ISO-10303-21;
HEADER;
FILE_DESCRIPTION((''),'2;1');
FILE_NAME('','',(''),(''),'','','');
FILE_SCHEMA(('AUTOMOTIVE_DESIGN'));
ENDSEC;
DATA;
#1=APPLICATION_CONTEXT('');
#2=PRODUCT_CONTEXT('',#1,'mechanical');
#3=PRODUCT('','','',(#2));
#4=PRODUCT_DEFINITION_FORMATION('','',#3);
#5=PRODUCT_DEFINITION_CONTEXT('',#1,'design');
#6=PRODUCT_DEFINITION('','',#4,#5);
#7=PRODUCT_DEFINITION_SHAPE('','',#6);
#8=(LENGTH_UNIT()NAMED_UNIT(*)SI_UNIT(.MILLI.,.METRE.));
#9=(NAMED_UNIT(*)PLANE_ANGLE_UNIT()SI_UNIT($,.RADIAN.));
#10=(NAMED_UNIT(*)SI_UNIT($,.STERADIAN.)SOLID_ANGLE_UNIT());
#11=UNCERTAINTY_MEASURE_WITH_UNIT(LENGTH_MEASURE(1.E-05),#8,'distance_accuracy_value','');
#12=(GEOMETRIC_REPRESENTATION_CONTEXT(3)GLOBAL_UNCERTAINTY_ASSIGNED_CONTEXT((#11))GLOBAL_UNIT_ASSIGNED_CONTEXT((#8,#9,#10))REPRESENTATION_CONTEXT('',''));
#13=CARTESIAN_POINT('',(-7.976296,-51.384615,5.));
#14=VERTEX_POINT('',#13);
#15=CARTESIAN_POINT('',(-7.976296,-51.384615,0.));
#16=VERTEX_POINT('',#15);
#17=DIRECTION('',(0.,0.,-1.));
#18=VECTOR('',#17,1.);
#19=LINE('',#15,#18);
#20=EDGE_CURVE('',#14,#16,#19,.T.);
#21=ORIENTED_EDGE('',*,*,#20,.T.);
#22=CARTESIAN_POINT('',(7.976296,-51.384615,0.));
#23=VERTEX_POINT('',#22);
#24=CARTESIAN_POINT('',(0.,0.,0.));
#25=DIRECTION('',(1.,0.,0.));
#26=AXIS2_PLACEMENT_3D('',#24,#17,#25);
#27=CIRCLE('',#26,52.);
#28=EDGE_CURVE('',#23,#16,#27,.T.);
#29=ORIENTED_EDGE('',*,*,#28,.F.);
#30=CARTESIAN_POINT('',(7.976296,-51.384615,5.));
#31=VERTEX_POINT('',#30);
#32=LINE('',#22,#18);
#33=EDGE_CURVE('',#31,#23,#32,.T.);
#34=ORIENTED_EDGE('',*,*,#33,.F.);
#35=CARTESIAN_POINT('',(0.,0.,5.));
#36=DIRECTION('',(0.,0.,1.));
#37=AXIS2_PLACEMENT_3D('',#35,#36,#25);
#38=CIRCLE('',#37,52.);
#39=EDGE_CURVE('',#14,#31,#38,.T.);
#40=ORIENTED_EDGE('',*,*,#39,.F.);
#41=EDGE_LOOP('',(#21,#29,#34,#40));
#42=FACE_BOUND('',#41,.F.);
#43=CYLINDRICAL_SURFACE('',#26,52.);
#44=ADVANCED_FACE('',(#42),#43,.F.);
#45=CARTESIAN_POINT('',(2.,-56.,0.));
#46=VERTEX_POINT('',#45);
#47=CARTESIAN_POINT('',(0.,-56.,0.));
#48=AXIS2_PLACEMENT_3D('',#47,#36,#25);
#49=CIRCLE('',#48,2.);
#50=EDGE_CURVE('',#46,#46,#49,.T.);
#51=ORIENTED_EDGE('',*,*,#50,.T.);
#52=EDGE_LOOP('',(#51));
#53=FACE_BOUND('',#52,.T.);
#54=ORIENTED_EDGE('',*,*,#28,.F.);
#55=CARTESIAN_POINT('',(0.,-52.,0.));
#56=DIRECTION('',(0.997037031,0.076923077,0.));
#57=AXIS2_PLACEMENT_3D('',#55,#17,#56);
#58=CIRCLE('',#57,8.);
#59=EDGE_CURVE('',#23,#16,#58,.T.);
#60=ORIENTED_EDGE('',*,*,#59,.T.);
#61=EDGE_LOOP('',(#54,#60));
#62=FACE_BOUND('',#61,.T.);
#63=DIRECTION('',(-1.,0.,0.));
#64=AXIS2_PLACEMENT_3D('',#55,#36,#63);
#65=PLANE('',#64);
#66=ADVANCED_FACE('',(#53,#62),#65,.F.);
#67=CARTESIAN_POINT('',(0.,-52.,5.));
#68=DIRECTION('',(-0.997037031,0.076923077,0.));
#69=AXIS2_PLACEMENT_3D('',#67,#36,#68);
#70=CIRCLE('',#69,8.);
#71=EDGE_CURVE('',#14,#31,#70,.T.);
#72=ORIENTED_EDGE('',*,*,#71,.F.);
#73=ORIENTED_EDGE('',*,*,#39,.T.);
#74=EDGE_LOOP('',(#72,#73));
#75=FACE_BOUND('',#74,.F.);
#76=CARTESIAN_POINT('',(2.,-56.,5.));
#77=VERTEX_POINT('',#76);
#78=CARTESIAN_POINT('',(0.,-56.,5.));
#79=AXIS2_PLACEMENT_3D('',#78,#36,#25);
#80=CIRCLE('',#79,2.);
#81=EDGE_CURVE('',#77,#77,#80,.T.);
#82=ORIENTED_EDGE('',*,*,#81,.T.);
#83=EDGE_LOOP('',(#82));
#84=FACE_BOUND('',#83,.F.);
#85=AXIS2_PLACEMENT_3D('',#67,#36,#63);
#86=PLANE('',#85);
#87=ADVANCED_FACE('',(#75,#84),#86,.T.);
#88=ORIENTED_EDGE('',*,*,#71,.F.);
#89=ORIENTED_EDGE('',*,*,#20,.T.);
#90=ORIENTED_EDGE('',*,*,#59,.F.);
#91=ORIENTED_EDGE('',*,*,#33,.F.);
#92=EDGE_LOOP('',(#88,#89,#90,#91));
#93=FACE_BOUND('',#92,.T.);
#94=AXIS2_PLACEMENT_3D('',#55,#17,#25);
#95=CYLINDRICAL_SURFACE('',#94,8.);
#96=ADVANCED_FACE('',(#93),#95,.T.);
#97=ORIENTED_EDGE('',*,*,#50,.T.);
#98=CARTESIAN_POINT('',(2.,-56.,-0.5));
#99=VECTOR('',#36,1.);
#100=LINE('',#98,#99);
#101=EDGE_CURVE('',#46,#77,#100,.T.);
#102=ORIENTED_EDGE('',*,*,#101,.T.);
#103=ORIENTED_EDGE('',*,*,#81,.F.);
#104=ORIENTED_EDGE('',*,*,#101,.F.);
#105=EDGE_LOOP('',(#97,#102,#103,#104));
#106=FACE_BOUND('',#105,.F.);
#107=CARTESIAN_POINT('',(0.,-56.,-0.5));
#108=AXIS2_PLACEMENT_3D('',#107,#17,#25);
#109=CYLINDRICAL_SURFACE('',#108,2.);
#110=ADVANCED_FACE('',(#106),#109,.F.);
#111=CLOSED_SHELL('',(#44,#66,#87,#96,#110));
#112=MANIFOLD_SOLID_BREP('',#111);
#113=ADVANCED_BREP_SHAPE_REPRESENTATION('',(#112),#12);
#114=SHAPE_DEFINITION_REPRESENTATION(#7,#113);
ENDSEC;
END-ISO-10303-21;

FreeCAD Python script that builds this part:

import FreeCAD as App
import Part
import Sketcher
Q = App.Units.Quantity

doc = App.newDocument("Part")
params = doc.addObject("Spreadsheet::Sheet", "Params")
for row, (alias, value) in enumerate([
    ("sketch1_diameter", "4 mm"),
    ("pad1_length", "6 mm"),
    ("sketch2_diameter", "104 mm"),
    ("pad2_length", "67 mm"),
    ("sketch3_diameter", "16 mm"),
    ("pad3_length", "5 mm"),
], start=1):
    params.set(f"A{row}", alias)
    params.set(f"B{row}", "=" + value)
    params.setAlias(f"B{row}", alias)

body = doc.addObject("PartDesign::Body", "Body")

# Sketch on XY plane
sketch1 = body.newObject("Sketcher::SketchObject", "Sketch")
sketch1.AttachmentSupport = (doc.getObject("XY_Plane"), [""])
sketch1.MapMode = "FlatFace"
sketch1.AttachmentOffset = App.Placement(App.Vector(0, 0, -0.5), App.Rotation())
sketch1.addGeometry(Part.Circle(App.Vector(0, 56, 0), App.Vector(0, 0, 1), 2), False)
sketch1.addConstraint(Sketcher.Constraint("PointOnObject", 0, 3, -2))
sketch1.addConstraint(Sketcher.Constraint("Diameter", 0, Q("4 mm")))
sketch1.addConstraint(Sketcher.Constraint("DistanceY", -1, 1, 0, 3, Q("56 mm")))
sketch1.setExpression("Constraints[1]", "Params.sketch1_diameter")
pad1 = body.newObject("PartDesign::Pad", "Pad")
pad1.Profile = sketch1
pad1.setExpression("Length", "Params.pad1_length")
body2 = doc.addObject("PartDesign::Body", "Body001")

# Sketch on XY plane
sketch2 = body2.newObject("Sketcher::SketchObject", "Sketch001")
sketch2.AttachmentSupport = (doc.getObject("XY_Plane001"), [""])
sketch2.MapMode = "FlatFace"
sketch2.addGeometry(Part.Circle(App.Vector(0, 0, 0), App.Vector(0, 0, 1), 52), False)
sketch2.addConstraint(Sketcher.Constraint("Coincident", 0, 3, -1, 1))
sketch2.addConstraint(Sketcher.Constraint("Diameter", 0, Q("104 mm")))
sketch2.setExpression("Constraints[1]", "Params.sketch2_diameter")
pad2 = body2.newObject("PartDesign::Pad", "Pad001")
pad2.Profile = sketch2
pad2.setExpression("Length", "Params.pad2_length")
body3 = doc.addObject("PartDesign::Body", "Body002")

# Sketch on XY plane
sketch3 = body3.newObject("Sketcher::SketchObject", "Sketch002")
sketch3.AttachmentSupport = (doc.getObject("XY_Plane002"), [""])
sketch3.MapMode = "FlatFace"
sketch3.addGeometry(Part.Circle(App.Vector(0, 52, 0), App.Vector(0, 0, 1), 8), False)
sketch3.addConstraint(Sketcher.Constraint("PointOnObject", 0, 3, -2))
sketch3.addConstraint(Sketcher.Constraint("Diameter", 0, Q("16 mm")))
sketch3.addConstraint(Sketcher.Constraint("DistanceY", -1, 1, 0, 3, Q("52 mm")))
sketch3.setExpression("Constraints[1]", "Params.sketch3_diameter")
pad3 = body3.newObject("PartDesign::Pad", "Pad002")
pad3.Profile = sketch3
pad3.setExpression("Length", "Params.pad3_length")
doc.recompute()

boolean = body3.newObject("PartDesign::Boolean", "Boolean")
boolean.Type = "Cut"
boolean.addObjects([body2])
doc.recompute()

boolean2 = body3.newObject("PartDesign::Boolean", "Boolean001")
boolean2.Type = "Cut"
boolean2.addObjects([body])
body4 = doc.addObject("PartDesign::Body", "Body003")
doc.recompute()

mirroring = doc.addObject("Part::Mirroring", "Mirroring")
mirroring.Source = body3
mirroring.Base = App.Vector(0.001259, 0, 2.5)
mirroring.Normal = App.Vector(0, 1, 0)
body4.BaseFeature = mirroring
doc.recompute()
body3.Visibility = False
mirroring.Visibility = False

doc.recompute()
